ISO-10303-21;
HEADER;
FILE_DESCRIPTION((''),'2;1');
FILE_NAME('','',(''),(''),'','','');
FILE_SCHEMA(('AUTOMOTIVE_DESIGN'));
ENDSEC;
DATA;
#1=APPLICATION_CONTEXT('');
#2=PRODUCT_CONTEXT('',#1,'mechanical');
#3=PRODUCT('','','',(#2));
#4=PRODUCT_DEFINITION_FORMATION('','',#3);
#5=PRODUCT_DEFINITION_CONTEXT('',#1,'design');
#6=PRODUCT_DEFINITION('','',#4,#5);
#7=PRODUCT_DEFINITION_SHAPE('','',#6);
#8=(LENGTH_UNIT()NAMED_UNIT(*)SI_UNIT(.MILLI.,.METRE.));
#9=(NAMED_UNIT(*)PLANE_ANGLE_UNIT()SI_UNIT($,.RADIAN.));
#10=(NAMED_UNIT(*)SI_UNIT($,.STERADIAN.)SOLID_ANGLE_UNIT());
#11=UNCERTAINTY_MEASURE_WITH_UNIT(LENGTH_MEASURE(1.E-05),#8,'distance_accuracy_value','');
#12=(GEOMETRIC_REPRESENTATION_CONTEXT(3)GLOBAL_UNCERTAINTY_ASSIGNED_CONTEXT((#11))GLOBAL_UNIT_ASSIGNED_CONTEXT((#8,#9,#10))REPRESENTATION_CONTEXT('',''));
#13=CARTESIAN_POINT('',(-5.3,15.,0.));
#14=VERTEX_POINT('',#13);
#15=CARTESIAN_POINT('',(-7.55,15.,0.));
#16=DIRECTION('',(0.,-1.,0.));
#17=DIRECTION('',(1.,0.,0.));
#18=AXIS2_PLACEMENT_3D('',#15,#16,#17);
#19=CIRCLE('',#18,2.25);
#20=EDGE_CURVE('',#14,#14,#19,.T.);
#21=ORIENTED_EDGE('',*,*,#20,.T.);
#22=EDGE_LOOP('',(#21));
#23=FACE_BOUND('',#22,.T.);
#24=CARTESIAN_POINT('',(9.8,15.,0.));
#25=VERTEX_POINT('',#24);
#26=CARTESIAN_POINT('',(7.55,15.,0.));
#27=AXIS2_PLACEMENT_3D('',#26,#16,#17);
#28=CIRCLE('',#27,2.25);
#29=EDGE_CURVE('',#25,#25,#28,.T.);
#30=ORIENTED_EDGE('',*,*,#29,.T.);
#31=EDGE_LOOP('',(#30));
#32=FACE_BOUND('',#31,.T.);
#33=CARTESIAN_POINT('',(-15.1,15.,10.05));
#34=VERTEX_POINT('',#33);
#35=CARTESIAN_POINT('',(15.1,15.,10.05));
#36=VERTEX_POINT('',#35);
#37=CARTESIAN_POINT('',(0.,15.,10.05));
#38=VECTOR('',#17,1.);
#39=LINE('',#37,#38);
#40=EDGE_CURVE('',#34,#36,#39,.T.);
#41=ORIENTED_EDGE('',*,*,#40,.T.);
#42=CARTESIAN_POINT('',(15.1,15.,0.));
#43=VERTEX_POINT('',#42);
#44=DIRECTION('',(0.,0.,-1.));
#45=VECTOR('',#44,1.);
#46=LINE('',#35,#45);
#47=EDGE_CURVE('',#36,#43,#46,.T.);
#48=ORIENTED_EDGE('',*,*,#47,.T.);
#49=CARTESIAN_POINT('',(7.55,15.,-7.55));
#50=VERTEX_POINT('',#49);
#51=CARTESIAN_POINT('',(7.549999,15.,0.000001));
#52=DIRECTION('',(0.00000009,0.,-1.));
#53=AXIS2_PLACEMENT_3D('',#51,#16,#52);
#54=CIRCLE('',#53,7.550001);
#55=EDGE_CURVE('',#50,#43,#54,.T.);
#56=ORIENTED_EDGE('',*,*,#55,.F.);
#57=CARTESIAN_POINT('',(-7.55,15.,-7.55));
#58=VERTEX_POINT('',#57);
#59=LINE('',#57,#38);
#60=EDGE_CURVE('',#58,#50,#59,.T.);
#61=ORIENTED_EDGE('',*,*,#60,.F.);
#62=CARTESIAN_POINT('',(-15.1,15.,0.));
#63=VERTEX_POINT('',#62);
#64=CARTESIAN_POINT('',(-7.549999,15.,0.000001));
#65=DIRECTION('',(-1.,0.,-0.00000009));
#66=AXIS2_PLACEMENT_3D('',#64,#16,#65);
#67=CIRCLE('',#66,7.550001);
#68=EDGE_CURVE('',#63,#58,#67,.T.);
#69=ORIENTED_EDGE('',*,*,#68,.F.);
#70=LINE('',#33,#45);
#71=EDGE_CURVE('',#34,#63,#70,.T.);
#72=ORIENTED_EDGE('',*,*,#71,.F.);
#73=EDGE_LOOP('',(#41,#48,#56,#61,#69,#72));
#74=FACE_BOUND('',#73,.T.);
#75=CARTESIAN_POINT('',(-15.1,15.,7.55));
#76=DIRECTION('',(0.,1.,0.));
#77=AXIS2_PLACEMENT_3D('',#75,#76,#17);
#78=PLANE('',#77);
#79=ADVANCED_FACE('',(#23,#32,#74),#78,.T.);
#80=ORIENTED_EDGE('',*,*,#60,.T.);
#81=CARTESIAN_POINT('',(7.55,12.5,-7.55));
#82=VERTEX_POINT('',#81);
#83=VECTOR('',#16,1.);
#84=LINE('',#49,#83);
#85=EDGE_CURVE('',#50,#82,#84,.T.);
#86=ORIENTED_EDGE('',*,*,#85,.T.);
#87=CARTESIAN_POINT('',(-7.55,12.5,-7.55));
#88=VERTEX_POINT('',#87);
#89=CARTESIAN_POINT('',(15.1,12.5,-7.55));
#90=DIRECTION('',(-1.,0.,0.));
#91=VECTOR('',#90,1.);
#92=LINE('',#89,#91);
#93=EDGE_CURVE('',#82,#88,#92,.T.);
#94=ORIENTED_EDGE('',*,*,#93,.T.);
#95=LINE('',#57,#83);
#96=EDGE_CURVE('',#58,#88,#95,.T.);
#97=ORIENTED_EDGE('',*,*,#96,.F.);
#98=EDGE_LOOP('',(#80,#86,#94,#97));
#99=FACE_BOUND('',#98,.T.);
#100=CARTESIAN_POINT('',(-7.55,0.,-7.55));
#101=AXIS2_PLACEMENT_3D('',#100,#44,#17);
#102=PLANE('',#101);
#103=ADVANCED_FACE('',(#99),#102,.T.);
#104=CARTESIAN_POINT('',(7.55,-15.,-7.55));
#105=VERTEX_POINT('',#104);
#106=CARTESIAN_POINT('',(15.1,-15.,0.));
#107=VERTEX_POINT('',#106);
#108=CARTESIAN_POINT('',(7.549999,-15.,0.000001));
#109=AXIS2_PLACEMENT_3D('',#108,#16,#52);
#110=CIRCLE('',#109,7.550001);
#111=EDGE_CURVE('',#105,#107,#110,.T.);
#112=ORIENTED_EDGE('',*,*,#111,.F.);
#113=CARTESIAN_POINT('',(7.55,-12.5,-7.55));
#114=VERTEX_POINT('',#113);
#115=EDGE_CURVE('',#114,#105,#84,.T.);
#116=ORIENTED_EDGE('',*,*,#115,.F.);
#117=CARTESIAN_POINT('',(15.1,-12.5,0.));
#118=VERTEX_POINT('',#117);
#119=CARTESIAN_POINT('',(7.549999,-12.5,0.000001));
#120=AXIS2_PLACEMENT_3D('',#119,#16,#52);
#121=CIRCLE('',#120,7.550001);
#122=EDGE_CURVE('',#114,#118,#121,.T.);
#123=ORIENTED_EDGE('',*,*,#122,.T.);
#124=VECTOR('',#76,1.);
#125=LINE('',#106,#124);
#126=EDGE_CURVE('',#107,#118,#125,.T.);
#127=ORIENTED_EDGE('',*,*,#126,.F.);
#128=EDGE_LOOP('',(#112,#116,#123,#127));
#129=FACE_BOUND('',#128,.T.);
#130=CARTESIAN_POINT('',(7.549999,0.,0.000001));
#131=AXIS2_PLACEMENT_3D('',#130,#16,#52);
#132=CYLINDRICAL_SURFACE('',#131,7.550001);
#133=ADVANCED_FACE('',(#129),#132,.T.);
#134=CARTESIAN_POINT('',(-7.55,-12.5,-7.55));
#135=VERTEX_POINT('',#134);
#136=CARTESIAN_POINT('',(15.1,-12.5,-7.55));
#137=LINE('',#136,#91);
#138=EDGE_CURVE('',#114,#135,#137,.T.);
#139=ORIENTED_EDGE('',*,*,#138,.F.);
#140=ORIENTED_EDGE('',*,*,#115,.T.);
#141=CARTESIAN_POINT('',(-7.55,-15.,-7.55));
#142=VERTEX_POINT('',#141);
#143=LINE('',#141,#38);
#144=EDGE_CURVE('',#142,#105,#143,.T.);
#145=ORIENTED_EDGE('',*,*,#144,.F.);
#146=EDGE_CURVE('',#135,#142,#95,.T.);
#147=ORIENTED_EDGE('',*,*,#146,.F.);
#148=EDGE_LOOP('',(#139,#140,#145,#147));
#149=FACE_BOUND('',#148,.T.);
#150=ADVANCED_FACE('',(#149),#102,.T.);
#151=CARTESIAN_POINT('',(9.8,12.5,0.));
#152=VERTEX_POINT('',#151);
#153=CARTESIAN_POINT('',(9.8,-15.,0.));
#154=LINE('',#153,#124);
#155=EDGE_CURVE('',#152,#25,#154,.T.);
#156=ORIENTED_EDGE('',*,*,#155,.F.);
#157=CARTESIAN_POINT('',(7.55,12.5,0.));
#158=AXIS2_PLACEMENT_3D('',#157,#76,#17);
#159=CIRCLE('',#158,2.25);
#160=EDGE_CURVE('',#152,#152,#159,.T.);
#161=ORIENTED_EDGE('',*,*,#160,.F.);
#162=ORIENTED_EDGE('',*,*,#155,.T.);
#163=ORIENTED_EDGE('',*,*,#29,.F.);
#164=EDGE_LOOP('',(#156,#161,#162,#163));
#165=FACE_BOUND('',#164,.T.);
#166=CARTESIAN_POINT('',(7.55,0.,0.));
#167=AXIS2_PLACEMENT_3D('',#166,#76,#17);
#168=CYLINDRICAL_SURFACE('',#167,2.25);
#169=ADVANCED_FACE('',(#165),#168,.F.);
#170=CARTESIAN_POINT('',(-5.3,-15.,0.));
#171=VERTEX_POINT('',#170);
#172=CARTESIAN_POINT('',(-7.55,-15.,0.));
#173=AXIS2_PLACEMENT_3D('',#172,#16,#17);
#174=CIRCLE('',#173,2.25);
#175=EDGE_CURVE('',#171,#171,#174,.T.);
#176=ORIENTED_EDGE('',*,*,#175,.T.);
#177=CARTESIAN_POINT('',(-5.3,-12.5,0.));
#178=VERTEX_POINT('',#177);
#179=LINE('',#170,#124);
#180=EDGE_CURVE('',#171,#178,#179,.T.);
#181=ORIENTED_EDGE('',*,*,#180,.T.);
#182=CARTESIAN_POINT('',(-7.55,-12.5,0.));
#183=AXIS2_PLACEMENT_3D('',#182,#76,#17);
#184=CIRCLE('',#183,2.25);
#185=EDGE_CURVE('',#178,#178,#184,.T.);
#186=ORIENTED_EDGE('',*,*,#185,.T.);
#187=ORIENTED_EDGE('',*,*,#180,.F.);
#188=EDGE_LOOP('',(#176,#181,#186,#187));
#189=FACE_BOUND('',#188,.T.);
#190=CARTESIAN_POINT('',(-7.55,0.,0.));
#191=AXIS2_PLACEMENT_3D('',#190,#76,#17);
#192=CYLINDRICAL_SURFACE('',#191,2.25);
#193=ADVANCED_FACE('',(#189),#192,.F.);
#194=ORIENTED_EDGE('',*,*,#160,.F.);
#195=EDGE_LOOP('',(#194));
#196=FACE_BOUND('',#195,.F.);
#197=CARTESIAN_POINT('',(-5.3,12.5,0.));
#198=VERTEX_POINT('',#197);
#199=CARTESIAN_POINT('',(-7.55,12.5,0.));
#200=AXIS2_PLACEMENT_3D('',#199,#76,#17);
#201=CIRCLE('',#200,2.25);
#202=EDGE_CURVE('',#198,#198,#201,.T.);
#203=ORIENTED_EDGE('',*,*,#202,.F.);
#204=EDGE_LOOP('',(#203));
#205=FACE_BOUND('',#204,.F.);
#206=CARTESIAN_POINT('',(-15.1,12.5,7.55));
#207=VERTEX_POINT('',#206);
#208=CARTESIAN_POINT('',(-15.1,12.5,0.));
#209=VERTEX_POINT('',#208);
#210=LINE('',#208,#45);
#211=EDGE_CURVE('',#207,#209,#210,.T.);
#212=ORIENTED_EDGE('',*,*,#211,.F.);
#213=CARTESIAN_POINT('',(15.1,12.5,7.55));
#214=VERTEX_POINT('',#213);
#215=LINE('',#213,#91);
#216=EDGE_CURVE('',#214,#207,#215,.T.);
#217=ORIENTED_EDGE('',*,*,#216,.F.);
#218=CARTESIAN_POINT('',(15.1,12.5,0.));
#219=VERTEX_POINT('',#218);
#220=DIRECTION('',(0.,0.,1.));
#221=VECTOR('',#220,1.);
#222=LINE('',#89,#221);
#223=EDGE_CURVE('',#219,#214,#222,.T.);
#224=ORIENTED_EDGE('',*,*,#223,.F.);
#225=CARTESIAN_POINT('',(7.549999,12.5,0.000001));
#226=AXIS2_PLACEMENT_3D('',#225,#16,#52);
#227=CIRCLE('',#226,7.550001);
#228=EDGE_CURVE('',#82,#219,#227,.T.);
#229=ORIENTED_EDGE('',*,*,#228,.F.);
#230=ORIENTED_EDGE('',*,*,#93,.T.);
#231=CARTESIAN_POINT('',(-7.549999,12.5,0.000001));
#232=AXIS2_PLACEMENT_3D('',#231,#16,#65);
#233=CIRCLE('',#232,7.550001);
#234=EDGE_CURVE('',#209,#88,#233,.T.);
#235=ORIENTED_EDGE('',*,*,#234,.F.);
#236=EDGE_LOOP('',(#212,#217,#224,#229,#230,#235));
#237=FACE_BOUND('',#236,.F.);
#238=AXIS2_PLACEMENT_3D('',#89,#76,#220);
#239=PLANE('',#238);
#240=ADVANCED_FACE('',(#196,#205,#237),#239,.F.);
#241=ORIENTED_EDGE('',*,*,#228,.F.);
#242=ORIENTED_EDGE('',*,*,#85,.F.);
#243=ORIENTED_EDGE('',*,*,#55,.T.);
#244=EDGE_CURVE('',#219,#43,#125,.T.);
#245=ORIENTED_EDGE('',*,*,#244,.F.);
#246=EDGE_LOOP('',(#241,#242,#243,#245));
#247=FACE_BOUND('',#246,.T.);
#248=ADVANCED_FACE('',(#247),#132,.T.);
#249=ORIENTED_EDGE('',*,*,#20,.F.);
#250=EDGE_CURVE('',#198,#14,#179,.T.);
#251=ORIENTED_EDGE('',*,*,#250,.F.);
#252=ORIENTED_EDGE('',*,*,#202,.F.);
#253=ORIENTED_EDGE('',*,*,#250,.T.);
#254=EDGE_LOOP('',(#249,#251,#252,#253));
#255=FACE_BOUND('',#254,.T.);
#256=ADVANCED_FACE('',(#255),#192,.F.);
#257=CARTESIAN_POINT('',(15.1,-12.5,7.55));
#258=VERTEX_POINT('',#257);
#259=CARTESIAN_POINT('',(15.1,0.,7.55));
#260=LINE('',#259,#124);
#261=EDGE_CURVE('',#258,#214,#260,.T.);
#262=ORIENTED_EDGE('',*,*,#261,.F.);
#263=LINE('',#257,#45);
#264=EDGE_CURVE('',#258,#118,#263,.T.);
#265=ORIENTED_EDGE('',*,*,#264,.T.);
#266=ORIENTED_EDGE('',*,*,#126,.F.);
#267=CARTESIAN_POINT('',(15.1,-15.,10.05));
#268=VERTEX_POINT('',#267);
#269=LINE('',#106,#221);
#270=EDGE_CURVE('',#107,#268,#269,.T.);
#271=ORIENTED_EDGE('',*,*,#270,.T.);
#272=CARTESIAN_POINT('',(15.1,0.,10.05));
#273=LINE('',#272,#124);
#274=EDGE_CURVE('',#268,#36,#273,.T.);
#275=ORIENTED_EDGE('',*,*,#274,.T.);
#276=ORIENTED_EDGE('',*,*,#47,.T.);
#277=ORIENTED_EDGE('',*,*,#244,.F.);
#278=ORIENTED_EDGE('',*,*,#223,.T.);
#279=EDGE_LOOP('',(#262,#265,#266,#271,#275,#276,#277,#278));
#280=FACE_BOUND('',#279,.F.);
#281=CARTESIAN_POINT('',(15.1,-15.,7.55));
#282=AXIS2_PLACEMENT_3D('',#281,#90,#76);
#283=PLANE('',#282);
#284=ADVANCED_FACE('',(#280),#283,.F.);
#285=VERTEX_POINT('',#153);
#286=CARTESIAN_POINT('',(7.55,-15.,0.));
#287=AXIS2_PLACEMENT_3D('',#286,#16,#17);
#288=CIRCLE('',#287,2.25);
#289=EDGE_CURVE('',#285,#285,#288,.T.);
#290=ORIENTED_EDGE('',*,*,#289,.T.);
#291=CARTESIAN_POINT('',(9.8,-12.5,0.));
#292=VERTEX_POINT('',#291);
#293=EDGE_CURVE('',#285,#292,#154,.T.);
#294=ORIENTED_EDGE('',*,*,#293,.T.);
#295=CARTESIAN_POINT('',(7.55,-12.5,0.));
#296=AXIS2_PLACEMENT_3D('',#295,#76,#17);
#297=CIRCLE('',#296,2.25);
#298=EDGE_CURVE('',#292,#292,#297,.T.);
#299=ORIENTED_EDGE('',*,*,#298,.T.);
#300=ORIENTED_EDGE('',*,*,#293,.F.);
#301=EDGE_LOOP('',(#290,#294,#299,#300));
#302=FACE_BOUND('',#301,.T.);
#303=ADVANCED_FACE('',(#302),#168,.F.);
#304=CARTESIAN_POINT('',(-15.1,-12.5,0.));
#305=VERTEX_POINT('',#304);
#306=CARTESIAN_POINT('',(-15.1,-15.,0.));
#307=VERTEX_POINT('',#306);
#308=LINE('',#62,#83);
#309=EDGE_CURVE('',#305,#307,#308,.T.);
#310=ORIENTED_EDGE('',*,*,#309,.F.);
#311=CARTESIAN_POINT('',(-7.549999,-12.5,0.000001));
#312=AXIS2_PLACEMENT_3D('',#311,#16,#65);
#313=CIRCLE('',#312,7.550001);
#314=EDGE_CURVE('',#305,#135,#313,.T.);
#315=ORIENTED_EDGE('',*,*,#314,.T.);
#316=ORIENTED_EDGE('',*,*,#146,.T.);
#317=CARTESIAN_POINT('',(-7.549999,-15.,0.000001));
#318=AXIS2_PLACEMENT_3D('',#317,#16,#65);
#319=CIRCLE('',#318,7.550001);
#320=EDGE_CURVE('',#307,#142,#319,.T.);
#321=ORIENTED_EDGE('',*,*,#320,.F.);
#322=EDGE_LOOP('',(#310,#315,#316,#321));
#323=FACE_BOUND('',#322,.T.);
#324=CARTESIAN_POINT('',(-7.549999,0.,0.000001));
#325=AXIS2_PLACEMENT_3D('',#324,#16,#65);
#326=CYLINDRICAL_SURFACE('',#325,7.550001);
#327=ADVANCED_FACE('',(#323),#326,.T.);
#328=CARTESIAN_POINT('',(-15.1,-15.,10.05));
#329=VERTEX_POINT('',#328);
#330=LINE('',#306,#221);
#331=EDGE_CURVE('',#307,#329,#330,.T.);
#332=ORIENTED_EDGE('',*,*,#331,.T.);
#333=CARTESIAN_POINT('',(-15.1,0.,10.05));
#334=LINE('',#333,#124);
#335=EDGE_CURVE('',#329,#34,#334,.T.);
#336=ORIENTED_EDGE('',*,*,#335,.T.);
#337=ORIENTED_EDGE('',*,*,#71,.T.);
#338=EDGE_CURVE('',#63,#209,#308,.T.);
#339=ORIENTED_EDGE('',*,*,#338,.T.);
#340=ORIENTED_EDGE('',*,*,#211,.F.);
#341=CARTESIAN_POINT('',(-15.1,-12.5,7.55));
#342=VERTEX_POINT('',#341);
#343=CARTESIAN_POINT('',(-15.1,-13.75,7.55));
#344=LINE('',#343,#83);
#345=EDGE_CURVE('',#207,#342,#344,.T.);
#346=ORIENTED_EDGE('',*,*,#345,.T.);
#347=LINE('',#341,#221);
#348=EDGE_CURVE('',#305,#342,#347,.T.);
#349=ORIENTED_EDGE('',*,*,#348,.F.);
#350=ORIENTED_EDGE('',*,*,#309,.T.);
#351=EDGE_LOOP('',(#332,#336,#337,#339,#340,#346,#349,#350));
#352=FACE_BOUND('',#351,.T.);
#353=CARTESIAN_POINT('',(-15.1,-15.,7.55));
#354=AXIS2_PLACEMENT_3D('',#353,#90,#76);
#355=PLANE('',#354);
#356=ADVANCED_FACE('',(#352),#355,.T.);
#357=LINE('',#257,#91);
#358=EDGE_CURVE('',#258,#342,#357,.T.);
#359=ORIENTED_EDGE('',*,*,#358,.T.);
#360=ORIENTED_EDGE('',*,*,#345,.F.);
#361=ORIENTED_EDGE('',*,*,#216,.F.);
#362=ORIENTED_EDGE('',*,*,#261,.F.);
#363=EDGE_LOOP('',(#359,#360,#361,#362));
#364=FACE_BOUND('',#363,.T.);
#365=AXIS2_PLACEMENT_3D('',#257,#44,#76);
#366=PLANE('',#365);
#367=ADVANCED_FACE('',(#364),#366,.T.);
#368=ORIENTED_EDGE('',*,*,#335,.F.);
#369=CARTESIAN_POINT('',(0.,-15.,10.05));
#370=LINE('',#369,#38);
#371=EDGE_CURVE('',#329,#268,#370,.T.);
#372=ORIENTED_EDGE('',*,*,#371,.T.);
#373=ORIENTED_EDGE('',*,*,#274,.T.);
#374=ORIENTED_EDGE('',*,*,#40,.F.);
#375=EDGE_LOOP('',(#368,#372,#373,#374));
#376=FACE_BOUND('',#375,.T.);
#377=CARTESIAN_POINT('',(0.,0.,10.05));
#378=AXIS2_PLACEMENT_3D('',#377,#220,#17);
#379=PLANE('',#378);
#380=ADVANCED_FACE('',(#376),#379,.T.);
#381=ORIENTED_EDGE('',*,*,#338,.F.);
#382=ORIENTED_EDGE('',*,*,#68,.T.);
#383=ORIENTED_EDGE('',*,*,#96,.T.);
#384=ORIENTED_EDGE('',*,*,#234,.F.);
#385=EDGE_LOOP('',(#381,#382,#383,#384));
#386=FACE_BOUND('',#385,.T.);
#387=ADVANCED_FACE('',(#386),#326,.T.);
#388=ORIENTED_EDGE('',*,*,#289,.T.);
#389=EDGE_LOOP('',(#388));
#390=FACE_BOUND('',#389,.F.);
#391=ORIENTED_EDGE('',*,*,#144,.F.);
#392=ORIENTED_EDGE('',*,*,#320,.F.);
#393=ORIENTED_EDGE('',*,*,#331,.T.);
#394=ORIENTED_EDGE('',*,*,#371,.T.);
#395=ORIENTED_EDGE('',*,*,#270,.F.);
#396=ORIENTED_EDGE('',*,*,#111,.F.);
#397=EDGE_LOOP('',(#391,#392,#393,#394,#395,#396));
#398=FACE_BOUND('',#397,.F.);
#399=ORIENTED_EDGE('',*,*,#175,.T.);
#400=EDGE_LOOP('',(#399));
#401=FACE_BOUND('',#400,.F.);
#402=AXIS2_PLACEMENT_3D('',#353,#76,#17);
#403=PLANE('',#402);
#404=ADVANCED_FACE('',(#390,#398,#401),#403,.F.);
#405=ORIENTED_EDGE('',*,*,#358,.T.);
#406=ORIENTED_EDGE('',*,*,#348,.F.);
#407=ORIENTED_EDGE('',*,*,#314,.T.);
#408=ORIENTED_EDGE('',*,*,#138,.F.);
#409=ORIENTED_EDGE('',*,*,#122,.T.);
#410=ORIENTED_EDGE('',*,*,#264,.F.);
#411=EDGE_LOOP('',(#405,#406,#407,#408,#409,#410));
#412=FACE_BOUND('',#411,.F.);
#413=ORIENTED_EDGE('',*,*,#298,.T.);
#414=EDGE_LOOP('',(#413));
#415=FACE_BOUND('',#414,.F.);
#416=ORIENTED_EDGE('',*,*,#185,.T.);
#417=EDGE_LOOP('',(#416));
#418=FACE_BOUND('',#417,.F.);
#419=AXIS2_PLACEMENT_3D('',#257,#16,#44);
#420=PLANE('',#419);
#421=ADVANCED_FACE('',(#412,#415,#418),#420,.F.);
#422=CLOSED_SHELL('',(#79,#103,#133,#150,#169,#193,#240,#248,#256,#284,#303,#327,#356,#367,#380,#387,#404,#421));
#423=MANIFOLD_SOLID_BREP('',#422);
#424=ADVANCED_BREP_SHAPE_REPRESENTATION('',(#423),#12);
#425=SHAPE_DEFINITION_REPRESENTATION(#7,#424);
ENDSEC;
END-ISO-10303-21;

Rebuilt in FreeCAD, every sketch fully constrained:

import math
import FreeCAD as App
import Part
import Sketcher

V = App.Vector

doc = App.newDocument("Part")
body = doc.addObject("PartDesign::Body", "Body")

sketch1 = body.newObject("Sketcher::SketchObject", "Sketch")
sketch1.AttachmentSupport = (doc.getObject("XZ_Plane"), [""])
sketch1.MapMode = "FlatFace"
sketch1.addGeometry([
    Part.LineSegment(V(-15.1, 7.55, 0), V(-15.1, 0, 0)),
    Part.ArcOfCircle(Part.Circle(V(-7.549999, 0.000001, 0), V(0, 0, 1), 7.550001), math.radians(-179.999995), math.radians(-90.000005)),
    Part.LineSegment(V(-7.55, -7.55, 0), V(7.55, -7.55, 0)),
    Part.ArcOfCircle(Part.Circle(V(7.549999, 0.000001, 0), V(0, 0, 1), 7.550001), math.radians(-89.999995), math.radians(-0.000005)),
    Part.LineSegment(V(15.1, 0, 0), V(15.1, 7.55, 0)),
    Part.LineSegment(V(15.1, 7.55, 0), V(-15.1, 7.55, 0)),
    Part.Circle(V(-7.55, 0, 0), V(0, 0, 1), 2.25),
    Part.Circle(V(7.55, 0, 0), V(0, 0, 1), 2.25),
], False)
sketch1.addConstraint([
    Sketcher.Constraint("Tangent", 0, 2, 1, 1),
    Sketcher.Constraint("Tangent", 1, 2, 2, 1),
    Sketcher.Constraint("Tangent", 2, 2, 3, 1),
    Sketcher.Constraint("Tangent", 3, 2, 4, 1),
    Sketcher.Constraint("Coincident", 4, 2, 5, 1),
    Sketcher.Constraint("Coincident", 5, 2, 0, 1),
    Sketcher.Constraint("Vertical", 0),
    Sketcher.Constraint("Horizontal", 2),
    Sketcher.Constraint("Vertical", 4),
    Sketcher.Constraint("Horizontal", 5),
    Sketcher.Constraint("Coincident", 6, 3, 1, 3),
    Sketcher.Constraint("Coincident", 7, 3, 3, 3),
    Sketcher.Constraint("Equal", 1, 3),
    Sketcher.Constraint("Equal", 6, 7),
    Sketcher.Constraint("Symmetric", 1, 3, 3, 3, -1, 1),
    Sketcher.Constraint("Diameter", 6, 4.5),
    Sketcher.Constraint("Radius", 1, 7.550001),
    Sketcher.Constraint("DistanceX", 2, 1, 2, 2, 15.1),
    Sketcher.Constraint("DistanceY", 0, 2, 0, 1, 7.55),
])
pad1 = body.newObject("PartDesign::Pad", "Pad")
pad1.Profile = sketch1
pad1.Length = 30
pad1.Midplane = True

sketch2 = body.newObject("Sketcher::SketchObject", "Sketch001")
sketch2.AttachmentSupport = (doc.getObject("XY_Plane"), [""])
sketch2.MapMode = "FlatFace"
sketch2.AttachmentOffset = App.Placement(V(0, 0, 7.55), App.Rotation())
sketch2.addGeometry([
    Part.LineSegment(V(-15.1, 15, 0), V(-15.1, -15, 0)),
    Part.LineSegment(V(-15.1, -15, 0), V(15.1, -15, 0)),
    Part.LineSegment(V(15.1, -15, 0), V(15.1, 15, 0)),
    Part.LineSegment(V(15.1, 15, 0), V(-15.1, 15, 0)),
], False)
sketch2.addConstraint([
    Sketcher.Constraint("Coincident", 0, 2, 1, 1),
    Sketcher.Constraint("Coincident", 1, 2, 2, 1),
    Sketcher.Constraint("Coincident", 2, 2, 3, 1),
    Sketcher.Constraint("Coincident", 3, 2, 0, 1),
    Sketcher.Constraint("Vertical", 0),
    Sketcher.Constraint("Horizontal", 1),
    Sketcher.Constraint("Vertical", 2),
    Sketcher.Constraint("Horizontal", 3),
    Sketcher.Constraint("Symmetric", 0, 2, 2, 2, -1, 1),
    Sketcher.Constraint("DistanceY", 0, 2, 0, 1, 30.0),
    Sketcher.Constraint("DistanceX", 1, 1, 1, 2, 30.2),
])
pad2 = body.newObject("PartDesign::Pad", "Pad001")
pad2.Profile = sketch2
pad2.Length = 2.5

sketch3 = body.newObject("Sketcher::SketchObject", "Sketch002")
sketch3.AttachmentSupport = (doc.getObject("YZ_Plane"), [""])
sketch3.MapMode = "FlatFace"
sketch3.AttachmentOffset = App.Placement(V(0, 0, 15.1), App.Rotation())
sketch3.addGeometry([
    Part.LineSegment(V(-12.5, 7.55, 0), V(-12.5, -7.55, 0)),
    Part.LineSegment(V(-12.5, -7.55, 0), V(12.5, -7.55, 0)),
    Part.LineSegment(V(12.5, -7.55, 0), V(12.5, 7.55, 0)),
    Part.LineSegment(V(12.5, 7.55, 0), V(-12.5, 7.55, 0)),
], False)
sketch3.addConstraint([
    Sketcher.Constraint("Coincident", 0, 2, 1, 1),
    Sketcher.Constraint("Coincident", 1, 2, 2, 1),
    Sketcher.Constraint("Coincident", 2, 2, 3, 1),
    Sketcher.Constraint("Coincident", 3, 2, 0, 1),
    Sketcher.Constraint("Vertical", 0),
    Sketcher.Constraint("Horizontal", 1),
    Sketcher.Constraint("Vertical", 2),
    Sketcher.Constraint("Horizontal", 3),
    Sketcher.Constraint("Symmetric", 0, 2, 2, 2, -1, 1),
    Sketcher.Constraint("DistanceX", 1, 1, 1, 2, 25.0),
    Sketcher.Constraint("DistanceY", 0, 2, 0, 1, 15.1),
])
pocket1 = body.newObject("PartDesign::Pocket", "Pocket")
pocket1.Profile = sketch3
pocket1.Type = "ThroughAll"

doc.recompute()
